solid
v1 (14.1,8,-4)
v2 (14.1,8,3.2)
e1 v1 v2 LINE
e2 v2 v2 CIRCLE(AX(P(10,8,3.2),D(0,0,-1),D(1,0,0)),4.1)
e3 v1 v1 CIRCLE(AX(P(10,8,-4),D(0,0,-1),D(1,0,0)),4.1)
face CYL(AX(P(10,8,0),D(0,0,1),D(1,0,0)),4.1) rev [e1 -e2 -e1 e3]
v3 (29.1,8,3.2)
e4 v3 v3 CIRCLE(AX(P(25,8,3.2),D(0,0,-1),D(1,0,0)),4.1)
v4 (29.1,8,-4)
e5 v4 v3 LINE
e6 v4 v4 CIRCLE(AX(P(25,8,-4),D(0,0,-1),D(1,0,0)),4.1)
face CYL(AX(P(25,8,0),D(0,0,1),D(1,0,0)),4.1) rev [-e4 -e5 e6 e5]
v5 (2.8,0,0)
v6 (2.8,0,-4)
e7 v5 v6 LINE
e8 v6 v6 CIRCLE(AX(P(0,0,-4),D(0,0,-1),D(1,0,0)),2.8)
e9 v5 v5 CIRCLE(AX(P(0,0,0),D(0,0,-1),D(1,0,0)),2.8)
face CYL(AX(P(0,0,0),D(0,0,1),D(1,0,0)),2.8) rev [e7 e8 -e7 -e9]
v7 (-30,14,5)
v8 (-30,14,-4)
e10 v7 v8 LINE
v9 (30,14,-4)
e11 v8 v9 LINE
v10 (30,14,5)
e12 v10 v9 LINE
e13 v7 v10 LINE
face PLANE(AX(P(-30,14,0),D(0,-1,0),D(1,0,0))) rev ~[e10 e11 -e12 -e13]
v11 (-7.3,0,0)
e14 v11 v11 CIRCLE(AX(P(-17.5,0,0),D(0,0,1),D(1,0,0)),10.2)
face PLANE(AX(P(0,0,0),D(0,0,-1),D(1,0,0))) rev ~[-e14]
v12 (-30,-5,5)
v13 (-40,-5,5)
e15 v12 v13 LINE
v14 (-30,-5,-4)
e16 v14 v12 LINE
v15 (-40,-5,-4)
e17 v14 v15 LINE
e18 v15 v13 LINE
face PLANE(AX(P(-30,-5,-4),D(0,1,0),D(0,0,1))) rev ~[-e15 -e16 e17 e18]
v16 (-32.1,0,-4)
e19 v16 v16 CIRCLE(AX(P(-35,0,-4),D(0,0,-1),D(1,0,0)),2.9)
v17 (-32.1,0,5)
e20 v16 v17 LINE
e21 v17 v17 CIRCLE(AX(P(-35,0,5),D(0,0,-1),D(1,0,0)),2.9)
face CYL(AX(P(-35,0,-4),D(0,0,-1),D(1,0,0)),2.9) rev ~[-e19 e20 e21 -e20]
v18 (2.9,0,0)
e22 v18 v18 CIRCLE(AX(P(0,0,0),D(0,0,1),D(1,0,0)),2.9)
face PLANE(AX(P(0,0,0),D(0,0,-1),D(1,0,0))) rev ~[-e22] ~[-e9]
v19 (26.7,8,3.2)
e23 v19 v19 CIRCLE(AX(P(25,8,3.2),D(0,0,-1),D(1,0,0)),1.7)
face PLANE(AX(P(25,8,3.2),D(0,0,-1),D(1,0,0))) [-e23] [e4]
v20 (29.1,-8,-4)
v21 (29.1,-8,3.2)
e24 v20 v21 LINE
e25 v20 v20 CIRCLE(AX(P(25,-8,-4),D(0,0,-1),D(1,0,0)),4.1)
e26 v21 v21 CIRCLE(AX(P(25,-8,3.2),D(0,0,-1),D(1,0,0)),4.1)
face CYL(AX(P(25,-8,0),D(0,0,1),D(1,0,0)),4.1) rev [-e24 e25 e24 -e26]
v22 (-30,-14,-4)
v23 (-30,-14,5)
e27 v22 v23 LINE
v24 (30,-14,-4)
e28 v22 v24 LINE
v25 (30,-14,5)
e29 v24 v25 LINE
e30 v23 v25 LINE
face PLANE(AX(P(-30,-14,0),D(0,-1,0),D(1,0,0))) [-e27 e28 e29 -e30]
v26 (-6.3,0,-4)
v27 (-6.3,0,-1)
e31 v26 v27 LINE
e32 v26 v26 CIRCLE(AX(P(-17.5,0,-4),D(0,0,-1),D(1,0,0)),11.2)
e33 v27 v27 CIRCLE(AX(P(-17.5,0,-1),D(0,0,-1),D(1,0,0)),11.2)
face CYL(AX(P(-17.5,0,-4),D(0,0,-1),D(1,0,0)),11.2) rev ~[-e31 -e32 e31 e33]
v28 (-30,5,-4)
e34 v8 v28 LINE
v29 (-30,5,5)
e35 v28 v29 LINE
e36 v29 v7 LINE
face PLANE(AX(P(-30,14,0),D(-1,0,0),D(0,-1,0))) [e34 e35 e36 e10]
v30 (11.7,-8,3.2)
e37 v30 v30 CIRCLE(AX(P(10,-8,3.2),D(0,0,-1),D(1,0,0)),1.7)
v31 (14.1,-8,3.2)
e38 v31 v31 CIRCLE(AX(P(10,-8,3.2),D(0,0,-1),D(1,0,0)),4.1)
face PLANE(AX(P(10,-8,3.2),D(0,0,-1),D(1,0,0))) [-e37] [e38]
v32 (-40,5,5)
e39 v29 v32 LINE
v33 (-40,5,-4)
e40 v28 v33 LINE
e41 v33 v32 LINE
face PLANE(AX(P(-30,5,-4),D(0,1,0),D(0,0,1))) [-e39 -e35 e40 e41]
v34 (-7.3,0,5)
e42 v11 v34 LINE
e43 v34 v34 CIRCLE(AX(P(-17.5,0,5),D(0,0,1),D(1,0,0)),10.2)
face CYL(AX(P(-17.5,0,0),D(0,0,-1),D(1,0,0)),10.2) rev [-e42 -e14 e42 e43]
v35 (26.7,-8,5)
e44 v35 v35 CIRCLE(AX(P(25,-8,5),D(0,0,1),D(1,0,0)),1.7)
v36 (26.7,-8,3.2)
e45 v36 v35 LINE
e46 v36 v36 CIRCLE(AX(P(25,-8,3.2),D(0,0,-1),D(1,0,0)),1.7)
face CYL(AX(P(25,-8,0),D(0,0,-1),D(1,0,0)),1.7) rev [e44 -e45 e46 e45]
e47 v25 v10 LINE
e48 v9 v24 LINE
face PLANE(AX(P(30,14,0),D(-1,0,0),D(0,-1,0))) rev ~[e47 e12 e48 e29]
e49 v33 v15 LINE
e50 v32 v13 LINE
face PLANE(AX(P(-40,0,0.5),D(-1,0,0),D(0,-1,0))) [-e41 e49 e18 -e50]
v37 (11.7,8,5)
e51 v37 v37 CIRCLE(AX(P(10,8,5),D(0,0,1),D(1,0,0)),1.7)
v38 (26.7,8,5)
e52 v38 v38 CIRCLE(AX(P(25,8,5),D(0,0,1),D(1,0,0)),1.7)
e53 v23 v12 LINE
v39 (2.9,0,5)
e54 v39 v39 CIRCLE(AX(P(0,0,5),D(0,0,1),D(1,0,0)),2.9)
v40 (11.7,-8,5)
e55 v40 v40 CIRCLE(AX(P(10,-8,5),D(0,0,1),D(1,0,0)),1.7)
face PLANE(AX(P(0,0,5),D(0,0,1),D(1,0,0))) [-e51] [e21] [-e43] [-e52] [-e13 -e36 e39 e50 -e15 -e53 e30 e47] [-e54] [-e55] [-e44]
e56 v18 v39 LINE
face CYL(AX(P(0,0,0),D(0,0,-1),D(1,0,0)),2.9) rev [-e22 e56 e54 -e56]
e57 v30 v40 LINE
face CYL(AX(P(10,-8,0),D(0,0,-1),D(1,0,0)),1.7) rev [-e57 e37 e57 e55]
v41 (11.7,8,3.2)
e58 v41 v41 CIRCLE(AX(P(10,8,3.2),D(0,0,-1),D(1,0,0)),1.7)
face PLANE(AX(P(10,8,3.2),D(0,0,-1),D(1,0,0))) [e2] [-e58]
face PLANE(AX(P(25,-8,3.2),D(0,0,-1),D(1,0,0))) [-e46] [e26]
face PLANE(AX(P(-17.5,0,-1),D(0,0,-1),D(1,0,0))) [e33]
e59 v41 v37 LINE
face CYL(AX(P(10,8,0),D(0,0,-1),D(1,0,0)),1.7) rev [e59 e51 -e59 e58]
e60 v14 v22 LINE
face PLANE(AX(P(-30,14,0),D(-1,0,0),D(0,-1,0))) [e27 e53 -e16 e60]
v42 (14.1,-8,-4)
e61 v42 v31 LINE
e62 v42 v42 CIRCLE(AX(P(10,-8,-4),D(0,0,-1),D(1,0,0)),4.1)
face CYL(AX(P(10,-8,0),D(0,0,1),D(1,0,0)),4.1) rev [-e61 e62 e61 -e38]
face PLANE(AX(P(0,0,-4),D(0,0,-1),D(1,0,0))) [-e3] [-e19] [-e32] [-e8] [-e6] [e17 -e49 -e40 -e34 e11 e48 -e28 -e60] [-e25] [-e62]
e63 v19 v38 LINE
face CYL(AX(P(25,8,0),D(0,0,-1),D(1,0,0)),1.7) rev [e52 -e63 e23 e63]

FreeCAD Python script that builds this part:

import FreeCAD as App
import Part
import Sketcher

V = App.Vector

doc = App.newDocument("Part")
params = doc.addObject("Spreadsheet::Sheet", "Params")
for row, (alias, value) in enumerate([
    ("sketch1_diameter", "3.4 mm"),
    ("sketch1_diameter2", "20.4 mm"),
    ("sketch1_diameter3", "5.8 mm"),
    ("sketch1_width", "60 mm"),
    ("sketch1_height", "28 mm"),
    ("pad1_length", "5 mm"),
    ("sketch2_diameter", "8.2 mm"),
    ("pocket1_length", "3.2 mm"),
    ("sketch3_diameter", "8.2 mm"),
    ("sketch3_diameter2", "5.6 mm"),
    ("sketch3_width", "60 mm"),
    ("sketch3_height", "28 mm"),
    ("pad2_length", "4 mm"),
    ("sketch4_diameter", "22.4 mm"),
    ("pocket2_length", "3 mm"),
    ("sketch5_width", "10 mm"),
    ("sketch5_height", "9 mm"),
    ("pad3_length", "10 mm"),
    ("sketch6_diameter", "5.8 mm"),
    ("pocket3_length", "9 mm"),
], start=1):
    params.set(f"A{row}", alias)
    params.set(f"B{row}", "=" + value)
    params.setAlias(f"B{row}", alias)

body = doc.addObject("PartDesign::Body", "Body")

# Sketch on XY plane
sketch1 = doc.addObject("Sketcher::SketchObject", "Sketch")
body.addObject(sketch1)
sketch1.AttachmentSupport = (doc.XY_Plane, [""])
sketch1.MapMode = "FlatFace"
sketch1.addGeometry([
    Part.LineSegment(V(-30, 14, 0), V(-30, -14, 0)),  # 0
    Part.LineSegment(V(-30, -14, 0), V(30, -14, 0)),  # 1
    Part.LineSegment(V(30, -14, 0), V(30, 14, 0)),  # 2
    Part.LineSegment(V(30, 14, 0), V(-30, 14, 0)),  # 3
    Part.Circle(V(10, -8, 0), V(0, 0, 1), 1.7),  # 4
    Part.Circle(V(25, -8, 0), V(0, 0, 1), 1.7),  # 5
    Part.Circle(V(-17.5, 0, 0), V(0, 0, 1), 10.2),  # 6
    Part.Circle(V(0, 0, 0), V(0, 0, 1), 2.9),  # 7
    Part.Circle(V(10, 8, 0), V(0, 0, 1), 1.7),  # 8
    Part.Circle(V(25, 8, 0), V(0, 0, 1), 1.7),  # 9
], False)
sketch1.addConstraint([
    Sketcher.Constraint("Coincident", 0, 2, 1, 1),
    Sketcher.Constraint("Coincident", 1, 2, 2, 1),
    Sketcher.Constraint("Coincident", 2, 2, 3, 1),
    Sketcher.Constraint("Coincident", 3, 2, 0, 1),
    Sketcher.Constraint("Vertical", 0),
    Sketcher.Constraint("Horizontal", 1),
    Sketcher.Constraint("Vertical", 2),
    Sketcher.Constraint("Horizontal", 3),
    Sketcher.Constraint("Coincident", 7, 3, -1, 1),
    Sketcher.Constraint("Equal", 4, 5),
    Sketcher.Constraint("Equal", 5, 8),
    Sketcher.Constraint("Equal", 8, 9),
    Sketcher.Constraint("Symmetric", 0, 2, 2, 2, -1, 1),
    Sketcher.Constraint("Symmetric", 4, 3, 8, 3, -1),
    Sketcher.Constraint("Symmetric", 5, 3, 9, 3, -1),
    Sketcher.Constraint("PointOnObject", 6, 3, -1),
    Sketcher.Constraint("Horizontal", 4, 3, 5, 3),
    Sketcher.Constraint("Diameter", 4, 3.4),
    Sketcher.Constraint("Diameter", 6, 20.4),
    Sketcher.Constraint("Diameter", 7, 5.8),
    Sketcher.Constraint("DistanceX", 1, 1, 1, 2, 60.0),
    Sketcher.Constraint("DistanceY", 0, 2, 0, 1, 28.0),
    Sketcher.Constraint("DistanceX", -1, 1, 4, 3, 10.0),
    Sketcher.Constraint("DistanceY", 4, 3, -1, 1, 8.0),
    Sketcher.Constraint("DistanceX", -1, 1, 5, 3, 25.0),
    Sketcher.Constraint("DistanceX", 6, 3, -1, 1, 17.5),
])
sketch1.setExpression("Constraints[17]", "Params.sketch1_diameter")
sketch1.setExpression("Constraints[18]", "Params.sketch1_diameter2")
sketch1.setExpression("Constraints[19]", "Params.sketch1_diameter3")
sketch1.setExpression("Constraints[20]", "Params.sketch1_width")
sketch1.setExpression("Constraints[21]", "Params.sketch1_height")
pad1 = doc.addObject("PartDesign::Pad", "Pad")
body.addObject(pad1)
pad1.Profile = sketch1
pad1.setExpression("Length", "Params.pad1_length")

# Sketch on XY plane
sketch2 = doc.addObject("Sketcher::SketchObject", "Sketch001")
body.addObject(sketch2)
sketch2.AttachmentSupport = (doc.XY_Plane, [""])
sketch2.MapMode = "FlatFace"
sketch2.addGeometry([
    Part.Circle(V(25, -8, 0), V(0, 0, 1), 4.1),
    Part.Circle(V(25, 8, 0), V(0, 0, 1), 4.1),
    Part.Circle(V(10, -8, 0), V(0, 0, 1), 4.1),
    Part.Circle(V(10, 8, 0), V(0, 0, 1), 4.1),
], False)
sketch2.addConstraint([
    Sketcher.Constraint("Equal", 0, 1),
    Sketcher.Constraint("Equal", 1, 2),
    Sketcher.Constraint("Equal", 2, 3),
    Sketcher.Constraint("Symmetric", 0, 3, 1, 3, -1),
    Sketcher.Constraint("Symmetric", 2, 3, 3, 3, -1),
    Sketcher.Constraint("Horizontal", 0, 3, 2, 3),
    Sketcher.Constraint("Diameter", 0, 8.2),
    Sketcher.Constraint("DistanceX", -1, 1, 0, 3, 25.0),
    Sketcher.Constraint("DistanceY", 0, 3, -1, 1, 8.0),
    Sketcher.Constraint("DistanceX", -1, 1, 2, 3, 10.0),
])
sketch2.setExpression("Constraints[6]", "Params.sketch2_diameter")
pocket1 = doc.addObject("PartDesign::Pocket", "Pocket")
body.addObject(pocket1)
pocket1.Profile = sketch2
pocket1.setExpression("Length", "Params.pocket1_length")
pocket1.Reversed = True

# Sketch on XY plane
sketch3 = doc.addObject("Sketcher::SketchObject", "Sketch002")
body.addObject(sketch3)
sketch3.AttachmentSupport = (doc.XY_Plane, [""])
sketch3.MapMode = "FlatFace"
sketch3.addGeometry([
    Part.LineSegment(V(-30, -14, 0), V(-30, 14, 0)),  # 0
    Part.LineSegment(V(-30, 14, 0), V(30, 14, 0)),  # 1
    Part.LineSegment(V(30, 14, 0), V(30, -14, 0)),  # 2
    Part.LineSegment(V(30, -14, 0), V(-30, -14, 0)),  # 3
    Part.Circle(V(10, 8, 0), V(0, 0, 1), 4.1),  # 4
    Part.Circle(V(25, 8, 0), V(0, 0, 1), 4.1),  # 5
    Part.Circle(V(0, 0, 0), V(0, 0, 1), 2.8),  # 6
    Part.Circle(V(10, -8, 0), V(0, 0, 1), 4.1),  # 7
    Part.Circle(V(25, -8, 0), V(0, 0, 1), 4.1),  # 8
], False)
sketch3.addConstraint([
    Sketcher.Constraint("Coincident", 0, 2, 1, 1),
    Sketcher.Constraint("Coincident", 1, 2, 2, 1),
    Sketcher.Constraint("Coincident", 2, 2, 3, 1),
    Sketcher.Constraint("Coincident", 3, 2, 0, 1),
    Sketcher.Constraint("Vertical", 0),
    Sketcher.Constraint("Horizontal", 1),
    Sketcher.Constraint("Vertical", 2),
    Sketcher.Constraint("Horizontal", 3),
    Sketcher.Constraint("Coincident", 6, 3, -1, 1),
    Sketcher.Constraint("Equal", 4, 5),
    Sketcher.Constraint("Equal", 5, 7),
    Sketcher.Constraint("Equal", 7, 8),
    Sketcher.Constraint("Symmetric", 0, 2, 2, 2, -1, 1),
    Sketcher.Constraint("Symmetric", 4, 3, 7, 3, -1),
    Sketcher.Constraint("Symmetric", 5, 3, 8, 3, -1),
    Sketcher.Constraint("Horizontal", 4, 3, 5, 3),
    Sketcher.Constraint("Diameter", 4, 8.2),
    Sketcher.Constraint("Diameter", 6, 5.6),
    Sketcher.Constraint("DistanceX", 1, 1, 1, 2, 60.0),
    Sketcher.Constraint("DistanceY", 0, 1, 0, 2, 28.0),
    Sketcher.Constraint("DistanceX", -1, 1, 4, 3, 10.0),
    Sketcher.Constraint("DistanceY", -1, 1, 4, 3, 8.0),
    Sketcher.Constraint("DistanceX", -1, 1, 5, 3, 25.0),
])
sketch3.setExpression("Constraints[16]", "Params.sketch3_diameter")
sketch3.setExpression("Constraints[17]", "Params.sketch3_diameter2")
sketch3.setExpression("Constraints[18]", "Params.sketch3_width")
sketch3.setExpression("Constraints[19]", "Params.sketch3_height")
pad2 = doc.addObject("PartDesign::Pad", "Pad001")
body.addObject(pad2)
pad2.Profile = sketch3
pad2.setExpression("Length", "Params.pad2_length")
pad2.Reversed = True

# Sketch on XY plane
sketch4 = doc.addObject("Sketcher::SketchObject", "Sketch003")
body.addObject(sketch4)
sketch4.AttachmentSupport = (doc.XY_Plane, [""])
sketch4.MapMode = "FlatFace"
sketch4.AttachmentOffset = App.Placement(V(0, 0, -4), App.Rotation())
sketch4.addGeometry(Part.Circle(V(-18, 0, 0), V(0, 0, 1), 11), False)
sketch4.addConstraint([
    Sketcher.Constraint("PointOnObject", 0, 3, -1),
    Sketcher.Constraint("Diameter", 0, 22.4),
    Sketcher.Constraint("DistanceX", 0, 3, -1, 1, 17.5),
])
sketch4.setExpression("Constraints[1]", "Params.sketch4_diameter")
pocket2 = doc.addObject("PartDesign::Pocket", "Pocket001")
body.addObject(pocket2)
pocket2.Profile = sketch4
pocket2.setExpression("Length", "Params.pocket2_length")
pocket2.Reversed = True

# Sketch on YZ plane
sketch5 = doc.addObject("Sketcher::SketchObject", "Sketch004")
body.addObject(sketch5)
sketch5.AttachmentSupport = (doc.YZ_Plane, [""])
sketch5.MapMode = "FlatFace"
sketch5.AttachmentOffset = App.Placement(V(0, 0, -30), App.Rotation())
sketch5.addGeometry([
    Part.LineSegment(V(5, 5, 0), V(5, -4, 0)),
    Part.LineSegment(V(5, -4, 0), V(-5, -4, 0)),
    Part.LineSegment(V(-5, -4, 0), V(-5, 5, 0)),
    Part.LineSegment(V(-5, 5, 0), V(5, 5, 0)),
], False)
sketch5.addConstraint([
    Sketcher.Constraint("Coincident", 0, 2, 1, 1),
    Sketcher.Constraint("Coincident", 1, 2, 2, 1),
    Sketcher.Constraint("Coincident", 2, 2, 3, 1),
    Sketcher.Constraint("Coincident", 3, 2, 0, 1),
    Sketcher.Constraint("Vertical", 0),
    Sketcher.Constraint("Horizontal", 1),
    Sketcher.Constraint("Vertical", 2),
    Sketcher.Constraint("Horizontal", 3),
    Sketcher.Constraint("DistanceX", 1, 2, 1, 1, 10.0),
    Sketcher.Constraint("DistanceY", 0, 2, 0, 1, 9.0),
    Sketcher.Constraint("DistanceX", -1, 1, 0, 2, 5.0),
    Sketcher.Constraint("DistanceY", 0, 2, -1, 1, 4.0),
])
sketch5.setExpression("Constraints[8]", "Params.sketch5_width")
sketch5.setExpression("Constraints[9]", "Params.sketch5_height")
pad3 = doc.addObject("PartDesign::Pad", "Pad002")
body.addObject(pad3)
pad3.Profile = sketch5
pad3.setExpression("Length", "Params.pad3_length")
pad3.Reversed = True

# Sketch on XY plane
sketch6 = doc.addObject("Sketcher::SketchObject", "Sketch005")
body.addObject(sketch6)
sketch6.AttachmentSupport = (doc.XY_Plane, [""])
sketch6.MapMode = "FlatFace"
sketch6.AttachmentOffset = App.Placement(V(0, 0, -4), App.Rotation())
sketch6.addGeometry(Part.Circle(V(-35, 0, 0), V(0, 0, 1), 2.9), False)
sketch6.addConstraint([
    Sketcher.Constraint("PointOnObject", 0, 3, -1),
    Sketcher.Constraint("Diameter", 0, 5.8),
    Sketcher.Constraint("DistanceX", 0, 3, -1, 1, 35.0),
])
sketch6.setExpression("Constraints[1]", "Params.sketch6_diameter")
pocket3 = doc.addObject("PartDesign::Pocket", "Pocket002")
body.addObject(pocket3)
pocket3.Profile = sketch6
pocket3.setExpression("Length", "Params.pocket3_length")
pocket3.Reversed = True

doc.recompute()
